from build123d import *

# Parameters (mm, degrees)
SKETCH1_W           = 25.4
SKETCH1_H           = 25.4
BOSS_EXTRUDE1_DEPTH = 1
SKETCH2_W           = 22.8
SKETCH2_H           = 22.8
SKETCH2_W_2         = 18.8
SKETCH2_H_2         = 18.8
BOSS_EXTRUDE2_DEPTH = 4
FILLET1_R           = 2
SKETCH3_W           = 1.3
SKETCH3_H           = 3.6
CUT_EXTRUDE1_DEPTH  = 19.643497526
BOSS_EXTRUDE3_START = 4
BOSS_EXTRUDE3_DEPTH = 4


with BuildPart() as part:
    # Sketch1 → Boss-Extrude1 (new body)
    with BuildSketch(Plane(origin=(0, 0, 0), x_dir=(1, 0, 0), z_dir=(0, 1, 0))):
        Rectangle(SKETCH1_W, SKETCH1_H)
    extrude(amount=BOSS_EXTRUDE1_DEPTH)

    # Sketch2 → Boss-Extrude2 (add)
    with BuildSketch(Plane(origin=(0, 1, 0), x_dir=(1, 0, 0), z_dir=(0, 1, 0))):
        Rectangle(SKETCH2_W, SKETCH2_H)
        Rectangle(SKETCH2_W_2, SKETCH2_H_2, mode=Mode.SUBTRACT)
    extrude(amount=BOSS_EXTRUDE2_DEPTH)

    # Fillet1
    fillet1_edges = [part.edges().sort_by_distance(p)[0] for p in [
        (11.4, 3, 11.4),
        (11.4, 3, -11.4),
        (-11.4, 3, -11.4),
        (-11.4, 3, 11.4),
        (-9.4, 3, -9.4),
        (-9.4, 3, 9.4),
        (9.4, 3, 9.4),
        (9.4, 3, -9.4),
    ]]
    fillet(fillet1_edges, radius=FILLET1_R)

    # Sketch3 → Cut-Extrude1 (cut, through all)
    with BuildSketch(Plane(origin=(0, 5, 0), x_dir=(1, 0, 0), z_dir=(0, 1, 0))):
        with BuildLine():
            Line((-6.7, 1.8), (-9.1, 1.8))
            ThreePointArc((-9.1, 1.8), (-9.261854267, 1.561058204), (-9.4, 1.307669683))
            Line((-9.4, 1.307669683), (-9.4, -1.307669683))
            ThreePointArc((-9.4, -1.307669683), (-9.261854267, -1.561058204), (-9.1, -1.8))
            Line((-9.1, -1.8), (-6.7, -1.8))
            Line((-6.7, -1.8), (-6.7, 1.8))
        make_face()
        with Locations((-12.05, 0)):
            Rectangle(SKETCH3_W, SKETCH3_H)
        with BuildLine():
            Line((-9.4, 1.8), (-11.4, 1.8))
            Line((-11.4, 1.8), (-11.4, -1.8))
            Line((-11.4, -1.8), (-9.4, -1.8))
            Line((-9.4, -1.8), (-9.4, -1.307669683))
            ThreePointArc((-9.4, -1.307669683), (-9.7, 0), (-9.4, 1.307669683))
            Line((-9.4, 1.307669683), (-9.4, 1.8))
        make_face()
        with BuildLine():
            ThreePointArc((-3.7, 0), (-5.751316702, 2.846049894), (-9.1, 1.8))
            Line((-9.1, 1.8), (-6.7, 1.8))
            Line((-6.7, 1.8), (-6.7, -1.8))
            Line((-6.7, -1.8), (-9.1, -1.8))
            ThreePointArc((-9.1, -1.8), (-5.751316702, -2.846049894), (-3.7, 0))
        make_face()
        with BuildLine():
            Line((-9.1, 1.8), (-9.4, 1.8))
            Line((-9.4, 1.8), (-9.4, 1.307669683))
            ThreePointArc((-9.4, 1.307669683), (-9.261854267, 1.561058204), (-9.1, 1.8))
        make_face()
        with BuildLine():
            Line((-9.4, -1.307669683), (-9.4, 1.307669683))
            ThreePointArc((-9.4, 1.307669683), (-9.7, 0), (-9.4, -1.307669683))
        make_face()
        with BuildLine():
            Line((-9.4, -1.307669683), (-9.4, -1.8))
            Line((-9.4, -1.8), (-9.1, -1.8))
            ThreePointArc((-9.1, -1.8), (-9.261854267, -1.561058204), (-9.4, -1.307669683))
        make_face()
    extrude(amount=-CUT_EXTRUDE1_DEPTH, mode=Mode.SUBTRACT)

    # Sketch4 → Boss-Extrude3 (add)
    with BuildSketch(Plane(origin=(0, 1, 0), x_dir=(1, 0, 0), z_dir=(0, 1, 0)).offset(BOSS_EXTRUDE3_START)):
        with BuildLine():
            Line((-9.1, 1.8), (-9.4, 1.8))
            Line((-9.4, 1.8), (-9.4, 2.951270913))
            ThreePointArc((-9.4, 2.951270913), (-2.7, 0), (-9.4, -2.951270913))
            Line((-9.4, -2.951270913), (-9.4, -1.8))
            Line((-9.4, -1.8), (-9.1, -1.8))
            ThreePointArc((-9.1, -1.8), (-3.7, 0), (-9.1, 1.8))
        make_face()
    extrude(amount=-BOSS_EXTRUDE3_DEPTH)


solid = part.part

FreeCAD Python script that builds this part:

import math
import FreeCAD as App
import Part
import Sketcher
from FreeCAD import Vector
Q = App.Units.Quantity


def edges_at(feature, points):
    """Names of the edges that pass closest to the given points."""
    edges = feature.Shape.Edges
    near = lambda p: min(range(len(edges)), key=lambda i: edges[i].distToShape(Part.Vertex(*p))[0])
    return sorted({f"Edge{near(p) + 1}" for p in points})


def add_polygon(sketch, points):
    """Adds a closed chain of lines whose ends are joined by coincident constraints."""
    first, n = sketch.GeometryCount, len(points)
    for a, b in zip(points, points[1:] + points[:1]):
        sketch.addGeometry(Part.LineSegment(App.Vector(*a, 0), App.Vector(*b, 0)), False)
    for i in range(n):
        sketch.addConstraint(Sketcher.Constraint("Coincident", first + i, 2, first + (i + 1) % n, 1))

doc = App.newDocument("Part")
body = doc.addObject("PartDesign::Body", "Body")

sketch1 = body.newObject("Sketcher::SketchObject", "Sketch")
sketch1.AttachmentSupport = (doc.getObject("XZ_Plane"), [""])
sketch1.MapMode = "FlatFace"
add_polygon(sketch1, [(-13, -13), (-13, 13), (13, 13), (13, -13)])
sketch1.addConstraint([
    Sketcher.Constraint("Vertical", 0),
    Sketcher.Constraint("Horizontal", 1),
    Sketcher.Constraint("Vertical", 2),
    Sketcher.Constraint("Horizontal", 3),
    Sketcher.Constraint("Symmetric", 0, 2, 2, 2, -1, 1),
    Sketcher.Constraint("Equal", 3, 0),
    Sketcher.Constraint("DistanceX", 1, 1, 1, 2, Q("25.4 mm")),
])
pad1 = body.newObject("PartDesign::Pad", "Pad")
pad1.Profile = sketch1
pad1.Length = 1
pad1.Reversed = True

sketch2 = body.newObject("Sketcher::SketchObject", "Sketch001")
sketch2.AttachmentSupport = (doc.getObject("XZ_Plane"), [""])
sketch2.MapMode = "FlatFace"
sketch2.AttachmentOffset = App.Placement(Vector(0, 0, -1), App.Rotation())
add_polygon(sketch2, [(-11, -11), (-11, 11), (11, 11), (11, -11)])
add_polygon(sketch2, [(9, 9), (-9, 9), (-9, -9), (9, -9)])
sketch2.addConstraint([
    Sketcher.Constraint("Vertical", 0),
    Sketcher.Constraint("Horizontal", 1),
    Sketcher.Constraint("Vertical", 2),
    Sketcher.Constraint("Horizontal", 3),
    Sketcher.Constraint("Horizontal", 4),
    Sketcher.Constraint("Vertical", 5),
    Sketcher.Constraint("Horizontal", 6),
    Sketcher.Constraint("Vertical", 7),
    Sketcher.Constraint("Symmetric", 0, 2, 2, 2, -1, 1),
    Sketcher.Constraint("Symmetric", 4, 2, 6, 2, -1, 1),
    Sketcher.Constraint("Equal", 3, 0),
    Sketcher.Constraint("Equal", 6, 5),
    Sketcher.Constraint("DistanceX", 1, 1, 1, 2, Q("22.8 mm")),
    Sketcher.Constraint("DistanceX", 4, 2, 4, 1, Q("18.8 mm")),
])
pad2 = body.newObject("PartDesign::Pad", "Pad001")
pad2.Profile = sketch2
pad2.Length = 4
pad2.Reversed = True
doc.recompute()

fillet = body.newObject("PartDesign::Fillet", "Fillet")
fillet.Base = (pad2, edges_at(pad2, [
    (11.4, 3, 11.4),
    (11.4, 3, -11.4),
    (-11.4, 3, -11.4),
    (-11.4, 3, 11.4),
    (-9.4, 3, -9.4),
    (-9.4, 3, 9.4),
    (9.4, 3, 9.4),
    (9.4, 3, -9.4),
]))
fillet.Radius = 2

sketch3 = body.newObject("Sketcher::SketchObject", "Sketch002")
sketch3.AttachmentSupport = (doc.getObject("XZ_Plane"), [""])
sketch3.MapMode = "FlatFace"
sketch3.AttachmentOffset = App.Placement(Vector(0, 0, -5), App.Rotation())
sketch3.addGeometry([
    Part.ArcOfCircle(Part.Circle(Vector(-6.7, 0, 0), Vector(0, 0, 1), 3), math.radians(0), math.radians(143)),
    Part.ArcOfCircle(Part.Circle(Vector(-6.7, 0, 0), Vector(0, 0, 1), 3), math.radians(-143), math.radians(0)),
    Part.LineSegment(Vector(-9.1, -1.8, 0), Vector(-12.7, -1.8, 0)),
    Part.LineSegment(Vector(-12.7, -1.8, 0), Vector(-12.7, 1.8, 0)),
    Part.LineSegment(Vector(-12.7, 1.8, 0), Vector(-9.1, 1.8, 0)),
], False)
sketch3.addConstraint([
    Sketcher.Constraint("Tangent", 0, 1, 1, 2),
    Sketcher.Constraint("Coincident", 1, 1, 2, 1),
    Sketcher.Constraint("Coincident", 2, 2, 3, 1),
    Sketcher.Constraint("Coincident", 3, 2, 4, 1),
    Sketcher.Constraint("Coincident", 4, 2, 0, 2),
    Sketcher.Constraint("Horizontal", 2),
    Sketcher.Constraint("Vertical", 3),
    Sketcher.Constraint("Horizontal", 4),
    Sketcher.Constraint("Equal", 0, 1),
    Sketcher.Constraint("Symmetric", 1, 1, 4, 2, -1),
    Sketcher.Constraint("PointOnObject", 0, 1, -1),
    Sketcher.Constraint("Equal", 4, 3),
    Sketcher.Constraint("Radius", 0, Q("3 mm")),
    Sketcher.Constraint("DistanceX", 2, 2, 2, 1, Q("3.6 mm")),
    Sketcher.Constraint("DistanceX", 0, 3, -1, 1, Q("6.7 mm")),
])
pocket1 = body.newObject("PartDesign::Pocket", "Pocket")
pocket1.Profile = sketch3
pocket1.Type = "ThroughAll"
pocket1.Reversed = True

sketch4 = body.newObject("Sketcher::SketchObject", "Sketch003")
sketch4.AttachmentSupport = (doc.getObject("XZ_Plane"), [""])
sketch4.MapMode = "FlatFace"
sketch4.AttachmentOffset = App.Placement(Vector(0, 0, -5), App.Rotation())
sketch4.addGeometry([
    Part.LineSegment(Vector(-9.4, -1.8, 0), Vector(-9.1, -1.8, 0)),
    Part.ArcOfCircle(Part.Circle(Vector(-6.7, 0, 0), Vector(0, 0, 1), 3), math.radians(-143), math.radians(143)),
    Part.LineSegment(Vector(-9.1, 1.8, 0), Vector(-9.4, 1.8, 0)),
    Part.LineSegment(Vector(-9.4, 1.8, 0), Vector(-9.4, 2.95, 0)),
    Part.ArcOfCircle(Part.Circle(Vector(-6.7, 0, 0), Vector(0, 0, 1), 4), math.radians(-132), math.radians(132)),
    Part.LineSegment(Vector(-9.4, -2.95, 0), Vector(-9.4, -1.8, 0)),
], False)
sketch4.addConstraint([
    Sketcher.Constraint("Coincident", 0, 2, 1, 1),
    Sketcher.Constraint("Coincident", 1, 2, 2, 1),
    Sketcher.Constraint("Coincident", 2, 2, 3, 1),
    Sketcher.Constraint("Coincident", 3, 2, 4, 2),
    Sketcher.Constraint("Coincident", 4, 1, 5, 1),
    Sketcher.Constraint("Coincident", 5, 2, 0, 1),
    Sketcher.Constraint("Horizontal", 0),
    Sketcher.Constraint("Horizontal", 2),
    Sketcher.Constraint("Vertical", 3),
    Sketcher.Constraint("Vertical", 5),
    Sketcher.Constraint("Coincident", 4, 3, 1, 3),
    Sketcher.Constraint("Symmetric", 0, 2, 1, 2, -1),
    Sketcher.Constraint("Vertical", 3, 2, 4, 1),
    Sketcher.Constraint("Radius", 1, Q("3 mm")),
    Sketcher.Constraint("Radius", 4, Q("4 mm")),
    Sketcher.Constraint("DistanceX", 0, 1, 0, 2, Q("0.3 mm")),
    Sketcher.Constraint("DistanceX", 1, 3, -1, 1, Q("6.7 mm")),
    Sketcher.Constraint("DistanceX", 0, 2, -1, 1, Q("9.1 mm")),
])
pad3 = body.newObject("PartDesign::Pad", "Pad002")
pad3.Profile = sketch4
pad3.Length = 4

doc.recompute()
